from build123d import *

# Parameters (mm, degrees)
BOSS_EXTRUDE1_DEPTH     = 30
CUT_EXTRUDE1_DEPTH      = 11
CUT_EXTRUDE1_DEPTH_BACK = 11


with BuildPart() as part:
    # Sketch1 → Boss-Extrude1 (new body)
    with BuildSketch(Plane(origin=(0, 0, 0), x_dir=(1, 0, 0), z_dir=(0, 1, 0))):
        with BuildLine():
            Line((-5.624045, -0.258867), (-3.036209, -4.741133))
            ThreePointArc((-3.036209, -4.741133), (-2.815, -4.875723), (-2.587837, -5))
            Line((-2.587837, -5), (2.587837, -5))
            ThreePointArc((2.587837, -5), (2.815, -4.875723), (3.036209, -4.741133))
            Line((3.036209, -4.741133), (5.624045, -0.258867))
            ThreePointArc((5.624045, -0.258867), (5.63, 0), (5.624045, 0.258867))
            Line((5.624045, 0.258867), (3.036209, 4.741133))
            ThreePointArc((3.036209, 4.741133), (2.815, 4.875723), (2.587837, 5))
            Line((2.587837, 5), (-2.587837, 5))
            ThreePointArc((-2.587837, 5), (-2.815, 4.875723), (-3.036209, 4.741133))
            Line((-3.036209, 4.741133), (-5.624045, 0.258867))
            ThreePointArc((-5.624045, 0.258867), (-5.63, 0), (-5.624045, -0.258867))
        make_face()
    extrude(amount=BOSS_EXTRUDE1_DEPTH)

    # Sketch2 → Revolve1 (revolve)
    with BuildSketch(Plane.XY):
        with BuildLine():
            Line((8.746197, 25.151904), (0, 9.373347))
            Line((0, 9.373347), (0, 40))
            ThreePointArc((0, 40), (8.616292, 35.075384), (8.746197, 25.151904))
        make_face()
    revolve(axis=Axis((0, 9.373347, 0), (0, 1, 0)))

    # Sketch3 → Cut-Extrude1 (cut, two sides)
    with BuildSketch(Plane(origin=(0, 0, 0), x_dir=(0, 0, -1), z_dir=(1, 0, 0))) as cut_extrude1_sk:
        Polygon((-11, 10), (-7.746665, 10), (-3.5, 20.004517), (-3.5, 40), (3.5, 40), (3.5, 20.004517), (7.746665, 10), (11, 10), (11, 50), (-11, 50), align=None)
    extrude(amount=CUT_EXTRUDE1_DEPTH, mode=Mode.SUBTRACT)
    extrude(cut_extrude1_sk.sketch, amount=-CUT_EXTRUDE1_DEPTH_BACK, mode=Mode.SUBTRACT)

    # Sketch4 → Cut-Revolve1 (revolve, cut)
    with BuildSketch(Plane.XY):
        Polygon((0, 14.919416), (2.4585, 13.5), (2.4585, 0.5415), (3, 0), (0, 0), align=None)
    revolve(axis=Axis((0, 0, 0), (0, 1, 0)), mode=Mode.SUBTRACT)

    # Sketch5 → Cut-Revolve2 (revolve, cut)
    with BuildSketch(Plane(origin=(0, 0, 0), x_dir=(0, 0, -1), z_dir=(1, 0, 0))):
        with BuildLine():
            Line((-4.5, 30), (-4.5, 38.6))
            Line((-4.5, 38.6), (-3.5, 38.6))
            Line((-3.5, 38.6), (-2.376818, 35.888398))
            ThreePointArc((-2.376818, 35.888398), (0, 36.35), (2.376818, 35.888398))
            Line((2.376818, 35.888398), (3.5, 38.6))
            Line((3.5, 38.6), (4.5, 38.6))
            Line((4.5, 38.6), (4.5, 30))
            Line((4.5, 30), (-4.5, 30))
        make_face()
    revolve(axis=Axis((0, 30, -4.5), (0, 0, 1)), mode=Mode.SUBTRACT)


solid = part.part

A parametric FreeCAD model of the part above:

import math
import FreeCAD as App
import Part
import Sketcher
Q = App.Units.Quantity

doc = App.newDocument("Part")
body = doc.addObject("PartDesign::Body", "Body")

sketch1 = doc.addObject("Sketcher::SketchObject", "Sketch")
body.addObject(sketch1)
sketch1.AttachmentSupport = (doc.XZ_Plane, [""])
sketch1.MapMode = "FlatFace"
sketch1.addGeometry([
    Part.LineSegment(App.Vector(-5.624045, 0.258867, 0), App.Vector(-3.036209, 4.741133, 0)),
    Part.ArcOfCircle(Part.Circle(App.Vector(0.000162, -0.000295, 0), App.Vector(0, 0, 1), 5.630336), math.radians(117.364701), math.radians(122.635166)),
    Part.LineSegment(App.Vector(-2.587837, 5, 0), App.Vector(2.587837, 5, 0)),
    Part.ArcOfCircle(Part.Circle(App.Vector(-0.000162, -0.000295, 0), App.Vector(0, 0, 1), 5.630336), math.radians(57.364834), math.radians(62.635299)),
    Part.LineSegment(App.Vector(3.036209, 4.741133, 0), App.Vector(5.624045, 0.258867, 0)),
    Part.ArcOfCircle(Part.Circle(App.Vector(0.00048, 0, 0), App.Vector(0, 0, 1), 5.62952), math.radians(-2.63561), math.radians(2.63561)),
    Part.LineSegment(App.Vector(5.624045, -0.258867, 0), App.Vector(3.036209, -4.741133, 0)),
    Part.ArcOfCircle(Part.Circle(App.Vector(-0.000162, 0.000295, 0), App.Vector(0, 0, 1), 5.630336), math.radians(-62.635299), math.radians(-57.364834)),
    Part.LineSegment(App.Vector(2.587837, -5, 0), App.Vector(-2.587837, -5, 0)),
    Part.ArcOfCircle(Part.Circle(App.Vector(0.000162, 0.000295, 0), App.Vector(0, 0, 1), 5.630336), math.radians(-122.635166), math.radians(-117.364701)),
    Part.LineSegment(App.Vector(-3.036209, -4.741133, 0), App.Vector(-5.624045, -0.258867, 0)),
    Part.ArcOfCircle(Part.Circle(App.Vector(-0.00048, 0, 0), App.Vector(0, 0, 1), 5.62952), math.radians(177.36439), math.radians(182.63561)),
], False)
sketch1.addConstraint([
    Sketcher.Constraint("Coincident", 0, 2, 1, 2),
    Sketcher.Constraint("Coincident", 1, 1, 2, 1),
    Sketcher.Constraint("Coincident", 2, 2, 3, 2),
    Sketcher.Constraint("Coincident", 3, 1, 4, 1),
    Sketcher.Constraint("Coincident", 4, 2, 5, 2),
    Sketcher.Constraint("Coincident", 5, 1, 6, 1),
    Sketcher.Constraint("Coincident", 6, 2, 7, 2),
    Sketcher.Constraint("Coincident", 7, 1, 8, 1),
    Sketcher.Constraint("Coincident", 8, 2, 9, 2),
    Sketcher.Constraint("Coincident", 9, 1, 10, 1),
    Sketcher.Constraint("Coincident", 10, 2, 11, 2),
    Sketcher.Constraint("Coincident", 11, 1, 0, 1),
    Sketcher.Constraint("Horizontal", 2),
    Sketcher.Constraint("Horizontal", 8),
    Sketcher.Constraint("Equal", 1, 3),
    Sketcher.Constraint("Equal", 3, 7),
    Sketcher.Constraint("Equal", 7, 9),
    Sketcher.Constraint("Equal", 5, 11),
    Sketcher.Constraint("Symmetric", 1, 3, 7, 3, -1, 1),
    Sketcher.Constraint("Symmetric", 3, 3, 9, 3, -1, 1),
    Sketcher.Constraint("Symmetric", 5, 3, 11, 3, -1, 1),
    Sketcher.Constraint("Symmetric", 1, 3, 3, 3, -2),
    Sketcher.Constraint("Symmetric", 5, 1, 10, 2, -2),
    Sketcher.Constraint("Parallel", 0, 6),
    Sketcher.Constraint("Parallel", 4, 10),
    Sketcher.Constraint("Horizontal", 0, 2, 3, 1),
    Sketcher.Constraint("Horizontal", 6, 2, 9, 1),
    Sketcher.Constraint("Vertical", 4, 2, 5, 1),
    Sketcher.Constraint("Vertical", 2, 2, 7, 1),
    Sketcher.Constraint("Angle", 0, Q("60.000014 deg")),
    Sketcher.Constraint("DistanceY", -1, 1, 1, 1, 5.0),
    Sketcher.Constraint("DistanceY", 5, 1, 3, 1, 5.0),
    Sketcher.Constraint("Radius", 5, 5.62952),
    Sketcher.Constraint("Radius", 1, 5.630336),
    Sketcher.Constraint("DistanceX", 1, 1, 9, 3, 2.587999),
    Sketcher.Constraint("DistanceX", 2, 1, 2, 2, 5.175674),
    Sketcher.Constraint("DistanceX", -1, 1, 5, 3, 0.00048),
])
pad1 = doc.addObject("PartDesign::Pad", "Pad")
body.addObject(pad1)
pad1.Profile = sketch1
pad1.Length = 30
pad1.Reversed = True

sketch2 = doc.addObject("Sketcher::SketchObject", "Sketch001")
body.addObject(sketch2)
sketch2.AttachmentSupport = (doc.XY_Plane, [""])
sketch2.MapMode = "FlatFace"
sketch2.addGeometry([
    Part.LineSegment(App.Vector(0, 9, 0), App.Vector(9, 25, 0)),
    Part.ArcOfCircle(Part.Circle(App.Vector(0, 30, 0), App.Vector(0, 0, 1), 10), math.radians(-29), math.radians(90)),
    Part.LineSegment(App.Vector(0, 40, 0), App.Vector(0, 9, 0)),
], False)
sketch2.addConstraint([
    Sketcher.Constraint("Tangent", 0, 2, 1, 1),
    Sketcher.Constraint("Coincident", 1, 2, 2, 1),
    Sketcher.Constraint("Coincident", 2, 2, 0, 1),
    Sketcher.Constraint("Vertical", 2),
    Sketcher.Constraint("PointOnObject", 1, 3, -2),
    Sketcher.Constraint("PointOnObject", 1, 2, -2),
    Sketcher.Constraint("Radius", 1, 9.999999),
    Sketcher.Constraint("Angle", 0, Q("61 deg")),
    Sketcher.Constraint("DistanceY", -1, 1, 1, 3, 30.000001),
])
revolution = doc.addObject("PartDesign::Revolution", "Revolution")
body.addObject(revolution)
revolution.Profile = sketch2
revolution.ReferenceAxis = (sketch2, ["V_Axis"])
revolution.Angle = 360

sketch3 = doc.addObject("Sketcher::SketchObject", "Sketch002")
body.addObject(sketch3)
sketch3.AttachmentSupport = (doc.YZ_Plane, [""])
sketch3.MapMode = "FlatFace"
sketch3.addGeometry([
    Part.LineSegment(App.Vector(10, 11, 0), App.Vector(10, 7.7, 0)),
    Part.LineSegment(App.Vector(10, 7.7, 0), App.Vector(20, 3.5, 0)),
    Part.LineSegment(App.Vector(20, 3.5, 0), App.Vector(40, 3.5, 0)),
    Part.LineSegment(App.Vector(40, 3.5, 0), App.Vector(40, -3.5, 0)),
    Part.LineSegment(App.Vector(40, -3.5, 0), App.Vector(20, -3.5, 0)),
    Part.LineSegment(App.Vector(20, -3.5, 0), App.Vector(10, -7.7, 0)),
    Part.LineSegment(App.Vector(10, -7.7, 0), App.Vector(10, -11, 0)),
    Part.LineSegment(App.Vector(10, -11, 0), App.Vector(50, -11, 0)),
    Part.LineSegment(App.Vector(50, -11, 0), App.Vector(50, 11, 0)),
    Part.LineSegment(App.Vector(50, 11, 0), App.Vector(10, 11, 0)),
], False)
sketch3.addConstraint([
    Sketcher.Constraint("Coincident", 0, 2, 1, 1),
    Sketcher.Constraint("Coincident", 1, 2, 2, 1),
    Sketcher.Constraint("Coincident", 2, 2, 3, 1),
    Sketcher.Constraint("Coincident", 3, 2, 4, 1),
    Sketcher.Constraint("Coincident", 4, 2, 5, 1),
    Sketcher.Constraint("Coincident", 5, 2, 6, 1),
    Sketcher.Constraint("Coincident", 6, 2, 7, 1),
    Sketcher.Constraint("Coincident", 7, 2, 8, 1),
    Sketcher.Constraint("Coincident", 8, 2, 9, 1),
    Sketcher.Constraint("Coincident", 9, 2, 0, 1),
    Sketcher.Constraint("Vertical", 0),
    Sketcher.Constraint("Horizontal", 2),
    Sketcher.Constraint("Vertical", 3),
    Sketcher.Constraint("Horizontal", 4),
    Sketcher.Constraint("Vertical", 6),
    Sketcher.Constraint("Horizontal", 7),
    Sketcher.Constraint("Vertical", 8),
    Sketcher.Constraint("Horizontal", 9),
    Sketcher.Constraint("Symmetric", 1, 2, 4, 2, -1),
    Sketcher.Constraint("Symmetric", 0, 2, 5, 2, -1),
    Sketcher.Constraint("Equal", 0, 6),
    Sketcher.Constraint("DistanceX", 7, 1, 7, 2, 40.0),
    Sketcher.Constraint("DistanceY", 3, 2, 3, 1, 7.0),
    Sketcher.Constraint("DistanceY", 8, 1, 8, 2, 22.0),
    Sketcher.Constraint("Angle", 1, Q("-22.999998 deg")),
    Sketcher.Constraint("DistanceX", -1, 1, 0, 2, 10.0),
    Sketcher.Constraint("DistanceX", -1, 1, 2, 2, 40.0),
    Sketcher.Constraint("Distance", 1, 10.868511),
])
pocket1 = doc.addObject("PartDesign::Pocket", "Pocket")
body.addObject(pocket1)
pocket1.Profile = sketch3
pocket1.Type = "ThroughAll"
pocket1.Midplane = True

sketch4 = doc.addObject("Sketcher::SketchObject", "Sketch003")
body.addObject(sketch4)
sketch4.AttachmentSupport = (doc.XY_Plane, [""])
sketch4.MapMode = "FlatFace"
sketch4.addGeometry([
    Part.LineSegment(App.Vector(2.5, 13.5, 0), App.Vector(0, 14.9, 0)),
    Part.LineSegment(App.Vector(0, 14.9, 0), App.Vector(0, 0, 0)),
    Part.LineSegment(App.Vector(0, 0, 0), App.Vector(3, 0, 0)),
    Part.LineSegment(App.Vector(3, 0, 0), App.Vector(2.5, 0.5, 0)),
    Part.LineSegment(App.Vector(2.5, 0.5, 0), App.Vector(2.5, 13.5, 0)),
], False)
sketch4.addConstraint([
    Sketcher.Constraint("Coincident", 0, 2, 1, 1),
    Sketcher.Constraint("Coincident", 1, 2, 2, 1),
    Sketcher.Constraint("Coincident", 2, 2, 3, 1),
    Sketcher.Constraint("Coincident", 3, 2, 4, 1),
    Sketcher.Constraint("Coincident", 4, 2, 0, 1),
    Sketcher.Constraint("Vertical", 1),
    Sketcher.Constraint("Horizontal", 2),
    Sketcher.Constraint("Vertical", 4),
    Sketcher.Constraint("Coincident", 1, 2, -1, 1),
    Sketcher.Constraint("DistanceX", 2, 1, 2, 2, 3.0),
    Sketcher.Constraint("Angle", 0, Q("149.999994 deg")),
    Sketcher.Constraint("Angle", 3, Q("135 deg")),
    Sketcher.Constraint("DistanceY", -1, 1, 4, 2, 13.5),
    Sketcher.Constraint("DistanceY", 4, 1, 4, 2, 12.9585),
])
groove = doc.addObject("PartDesign::Groove", "Groove")
body.addObject(groove)
groove.Profile = sketch4
groove.ReferenceAxis = (sketch4, ["V_Axis"])
groove.Angle = 360

sketch5 = doc.addObject("Sketcher::SketchObject", "Sketch004")
body.addObject(sketch5)
sketch5.AttachmentSupport = (doc.YZ_Plane, [""])
sketch5.MapMode = "FlatFace"
sketch5.addGeometry([
    Part.LineSegment(App.Vector(38.6, 4.5, 0), App.Vector(30, 4.5, 0)),
    Part.LineSegment(App.Vector(30, 4.5, 0), App.Vector(30, -4.5, 0)),
    Part.LineSegment(App.Vector(30, -4.5, 0), App.Vector(38.6, -4.5, 0)),
    Part.LineSegment(App.Vector(38.6, -4.5, 0), App.Vector(38.6, -3.5, 0)),
    Part.LineSegment(App.Vector(38.6, -3.5, 0), App.Vector(35.9, -2.4, 0)),
    Part.ArcOfCircle(Part.Circle(App.Vector(30, 0, 0), App.Vector(0, 0, 1), 6.3), math.radians(-22), math.radians(22)),
    Part.LineSegment(App.Vector(35.9, 2.4, 0), App.Vector(38.6, 3.5, 0)),
    Part.LineSegment(App.Vector(38.6, 3.5, 0), App.Vector(38.6, 4.5, 0)),
], False)
sketch5.addGeometry(Part.LineSegment(App.Vector(30, -4.5, 0), App.Vector(30, 4.5, 0)), True)
sketch5.addConstraint([
    Sketcher.Constraint("Coincident", 0, 2, 1, 1),
    Sketcher.Constraint("Coincident", 1, 2, 2, 1),
    Sketcher.Constraint("Coincident", 2, 2, 3, 1),
    Sketcher.Constraint("Coincident", 3, 2, 4, 1),
    Sketcher.Constraint("Coincident", 4, 2, 5, 1),
    Sketcher.Constraint("Coincident", 5, 2, 6, 1),
    Sketcher.Constraint("Coincident", 6, 2, 7, 1),
    Sketcher.Constraint("Coincident", 7, 2, 0, 1),
    Sketcher.Constraint("Horizontal", 0),
    Sketcher.Constraint("Vertical", 1),
    Sketcher.Constraint("Horizontal", 2),
    Sketcher.Constraint("Vertical", 3),
    Sketcher.Constraint("Vertical", 7),
    Sketcher.Constraint("Vertical", 8),
    Sketcher.Constraint("Coincident", 8, 1, 1, 2),
    Sketcher.Constraint("Symmetric", 4, 2, 5, 2, -1),
    Sketcher.Constraint("Symmetric", 3, 2, 6, 2, -1),
    Sketcher.Constraint("Horizontal", 7, 2, 8, 2),
    Sketcher.Constraint("Equal", 3, 7),
    Sketcher.Constraint("DistanceY", 1, 2, 1, 1, 9.0),
    Sketcher.Constraint("DistanceY", 3, 1, 3, 2, 1.0),
    Sketcher.Constraint("DistanceX", 0, 2, 0, 1, 8.6),
    Sketcher.Constraint("DistanceX", -1, 1, 0, 2, 30.0),
    Sketcher.Constraint("Angle", 4, Q("157.500006 deg")),
    Sketcher.Constraint("Radius", 5, 6.349994),
    Sketcher.Constraint("DistanceX", -1, 1, 4, 2, 35.888398),
])
groove2 = doc.addObject("PartDesign::Groove", "Groove001")
body.addObject(groove2)
groove2.Profile = sketch5
groove2.ReferenceAxis = (sketch5, ["Axis0"])
groove2.Angle = 360

doc.recompute()
